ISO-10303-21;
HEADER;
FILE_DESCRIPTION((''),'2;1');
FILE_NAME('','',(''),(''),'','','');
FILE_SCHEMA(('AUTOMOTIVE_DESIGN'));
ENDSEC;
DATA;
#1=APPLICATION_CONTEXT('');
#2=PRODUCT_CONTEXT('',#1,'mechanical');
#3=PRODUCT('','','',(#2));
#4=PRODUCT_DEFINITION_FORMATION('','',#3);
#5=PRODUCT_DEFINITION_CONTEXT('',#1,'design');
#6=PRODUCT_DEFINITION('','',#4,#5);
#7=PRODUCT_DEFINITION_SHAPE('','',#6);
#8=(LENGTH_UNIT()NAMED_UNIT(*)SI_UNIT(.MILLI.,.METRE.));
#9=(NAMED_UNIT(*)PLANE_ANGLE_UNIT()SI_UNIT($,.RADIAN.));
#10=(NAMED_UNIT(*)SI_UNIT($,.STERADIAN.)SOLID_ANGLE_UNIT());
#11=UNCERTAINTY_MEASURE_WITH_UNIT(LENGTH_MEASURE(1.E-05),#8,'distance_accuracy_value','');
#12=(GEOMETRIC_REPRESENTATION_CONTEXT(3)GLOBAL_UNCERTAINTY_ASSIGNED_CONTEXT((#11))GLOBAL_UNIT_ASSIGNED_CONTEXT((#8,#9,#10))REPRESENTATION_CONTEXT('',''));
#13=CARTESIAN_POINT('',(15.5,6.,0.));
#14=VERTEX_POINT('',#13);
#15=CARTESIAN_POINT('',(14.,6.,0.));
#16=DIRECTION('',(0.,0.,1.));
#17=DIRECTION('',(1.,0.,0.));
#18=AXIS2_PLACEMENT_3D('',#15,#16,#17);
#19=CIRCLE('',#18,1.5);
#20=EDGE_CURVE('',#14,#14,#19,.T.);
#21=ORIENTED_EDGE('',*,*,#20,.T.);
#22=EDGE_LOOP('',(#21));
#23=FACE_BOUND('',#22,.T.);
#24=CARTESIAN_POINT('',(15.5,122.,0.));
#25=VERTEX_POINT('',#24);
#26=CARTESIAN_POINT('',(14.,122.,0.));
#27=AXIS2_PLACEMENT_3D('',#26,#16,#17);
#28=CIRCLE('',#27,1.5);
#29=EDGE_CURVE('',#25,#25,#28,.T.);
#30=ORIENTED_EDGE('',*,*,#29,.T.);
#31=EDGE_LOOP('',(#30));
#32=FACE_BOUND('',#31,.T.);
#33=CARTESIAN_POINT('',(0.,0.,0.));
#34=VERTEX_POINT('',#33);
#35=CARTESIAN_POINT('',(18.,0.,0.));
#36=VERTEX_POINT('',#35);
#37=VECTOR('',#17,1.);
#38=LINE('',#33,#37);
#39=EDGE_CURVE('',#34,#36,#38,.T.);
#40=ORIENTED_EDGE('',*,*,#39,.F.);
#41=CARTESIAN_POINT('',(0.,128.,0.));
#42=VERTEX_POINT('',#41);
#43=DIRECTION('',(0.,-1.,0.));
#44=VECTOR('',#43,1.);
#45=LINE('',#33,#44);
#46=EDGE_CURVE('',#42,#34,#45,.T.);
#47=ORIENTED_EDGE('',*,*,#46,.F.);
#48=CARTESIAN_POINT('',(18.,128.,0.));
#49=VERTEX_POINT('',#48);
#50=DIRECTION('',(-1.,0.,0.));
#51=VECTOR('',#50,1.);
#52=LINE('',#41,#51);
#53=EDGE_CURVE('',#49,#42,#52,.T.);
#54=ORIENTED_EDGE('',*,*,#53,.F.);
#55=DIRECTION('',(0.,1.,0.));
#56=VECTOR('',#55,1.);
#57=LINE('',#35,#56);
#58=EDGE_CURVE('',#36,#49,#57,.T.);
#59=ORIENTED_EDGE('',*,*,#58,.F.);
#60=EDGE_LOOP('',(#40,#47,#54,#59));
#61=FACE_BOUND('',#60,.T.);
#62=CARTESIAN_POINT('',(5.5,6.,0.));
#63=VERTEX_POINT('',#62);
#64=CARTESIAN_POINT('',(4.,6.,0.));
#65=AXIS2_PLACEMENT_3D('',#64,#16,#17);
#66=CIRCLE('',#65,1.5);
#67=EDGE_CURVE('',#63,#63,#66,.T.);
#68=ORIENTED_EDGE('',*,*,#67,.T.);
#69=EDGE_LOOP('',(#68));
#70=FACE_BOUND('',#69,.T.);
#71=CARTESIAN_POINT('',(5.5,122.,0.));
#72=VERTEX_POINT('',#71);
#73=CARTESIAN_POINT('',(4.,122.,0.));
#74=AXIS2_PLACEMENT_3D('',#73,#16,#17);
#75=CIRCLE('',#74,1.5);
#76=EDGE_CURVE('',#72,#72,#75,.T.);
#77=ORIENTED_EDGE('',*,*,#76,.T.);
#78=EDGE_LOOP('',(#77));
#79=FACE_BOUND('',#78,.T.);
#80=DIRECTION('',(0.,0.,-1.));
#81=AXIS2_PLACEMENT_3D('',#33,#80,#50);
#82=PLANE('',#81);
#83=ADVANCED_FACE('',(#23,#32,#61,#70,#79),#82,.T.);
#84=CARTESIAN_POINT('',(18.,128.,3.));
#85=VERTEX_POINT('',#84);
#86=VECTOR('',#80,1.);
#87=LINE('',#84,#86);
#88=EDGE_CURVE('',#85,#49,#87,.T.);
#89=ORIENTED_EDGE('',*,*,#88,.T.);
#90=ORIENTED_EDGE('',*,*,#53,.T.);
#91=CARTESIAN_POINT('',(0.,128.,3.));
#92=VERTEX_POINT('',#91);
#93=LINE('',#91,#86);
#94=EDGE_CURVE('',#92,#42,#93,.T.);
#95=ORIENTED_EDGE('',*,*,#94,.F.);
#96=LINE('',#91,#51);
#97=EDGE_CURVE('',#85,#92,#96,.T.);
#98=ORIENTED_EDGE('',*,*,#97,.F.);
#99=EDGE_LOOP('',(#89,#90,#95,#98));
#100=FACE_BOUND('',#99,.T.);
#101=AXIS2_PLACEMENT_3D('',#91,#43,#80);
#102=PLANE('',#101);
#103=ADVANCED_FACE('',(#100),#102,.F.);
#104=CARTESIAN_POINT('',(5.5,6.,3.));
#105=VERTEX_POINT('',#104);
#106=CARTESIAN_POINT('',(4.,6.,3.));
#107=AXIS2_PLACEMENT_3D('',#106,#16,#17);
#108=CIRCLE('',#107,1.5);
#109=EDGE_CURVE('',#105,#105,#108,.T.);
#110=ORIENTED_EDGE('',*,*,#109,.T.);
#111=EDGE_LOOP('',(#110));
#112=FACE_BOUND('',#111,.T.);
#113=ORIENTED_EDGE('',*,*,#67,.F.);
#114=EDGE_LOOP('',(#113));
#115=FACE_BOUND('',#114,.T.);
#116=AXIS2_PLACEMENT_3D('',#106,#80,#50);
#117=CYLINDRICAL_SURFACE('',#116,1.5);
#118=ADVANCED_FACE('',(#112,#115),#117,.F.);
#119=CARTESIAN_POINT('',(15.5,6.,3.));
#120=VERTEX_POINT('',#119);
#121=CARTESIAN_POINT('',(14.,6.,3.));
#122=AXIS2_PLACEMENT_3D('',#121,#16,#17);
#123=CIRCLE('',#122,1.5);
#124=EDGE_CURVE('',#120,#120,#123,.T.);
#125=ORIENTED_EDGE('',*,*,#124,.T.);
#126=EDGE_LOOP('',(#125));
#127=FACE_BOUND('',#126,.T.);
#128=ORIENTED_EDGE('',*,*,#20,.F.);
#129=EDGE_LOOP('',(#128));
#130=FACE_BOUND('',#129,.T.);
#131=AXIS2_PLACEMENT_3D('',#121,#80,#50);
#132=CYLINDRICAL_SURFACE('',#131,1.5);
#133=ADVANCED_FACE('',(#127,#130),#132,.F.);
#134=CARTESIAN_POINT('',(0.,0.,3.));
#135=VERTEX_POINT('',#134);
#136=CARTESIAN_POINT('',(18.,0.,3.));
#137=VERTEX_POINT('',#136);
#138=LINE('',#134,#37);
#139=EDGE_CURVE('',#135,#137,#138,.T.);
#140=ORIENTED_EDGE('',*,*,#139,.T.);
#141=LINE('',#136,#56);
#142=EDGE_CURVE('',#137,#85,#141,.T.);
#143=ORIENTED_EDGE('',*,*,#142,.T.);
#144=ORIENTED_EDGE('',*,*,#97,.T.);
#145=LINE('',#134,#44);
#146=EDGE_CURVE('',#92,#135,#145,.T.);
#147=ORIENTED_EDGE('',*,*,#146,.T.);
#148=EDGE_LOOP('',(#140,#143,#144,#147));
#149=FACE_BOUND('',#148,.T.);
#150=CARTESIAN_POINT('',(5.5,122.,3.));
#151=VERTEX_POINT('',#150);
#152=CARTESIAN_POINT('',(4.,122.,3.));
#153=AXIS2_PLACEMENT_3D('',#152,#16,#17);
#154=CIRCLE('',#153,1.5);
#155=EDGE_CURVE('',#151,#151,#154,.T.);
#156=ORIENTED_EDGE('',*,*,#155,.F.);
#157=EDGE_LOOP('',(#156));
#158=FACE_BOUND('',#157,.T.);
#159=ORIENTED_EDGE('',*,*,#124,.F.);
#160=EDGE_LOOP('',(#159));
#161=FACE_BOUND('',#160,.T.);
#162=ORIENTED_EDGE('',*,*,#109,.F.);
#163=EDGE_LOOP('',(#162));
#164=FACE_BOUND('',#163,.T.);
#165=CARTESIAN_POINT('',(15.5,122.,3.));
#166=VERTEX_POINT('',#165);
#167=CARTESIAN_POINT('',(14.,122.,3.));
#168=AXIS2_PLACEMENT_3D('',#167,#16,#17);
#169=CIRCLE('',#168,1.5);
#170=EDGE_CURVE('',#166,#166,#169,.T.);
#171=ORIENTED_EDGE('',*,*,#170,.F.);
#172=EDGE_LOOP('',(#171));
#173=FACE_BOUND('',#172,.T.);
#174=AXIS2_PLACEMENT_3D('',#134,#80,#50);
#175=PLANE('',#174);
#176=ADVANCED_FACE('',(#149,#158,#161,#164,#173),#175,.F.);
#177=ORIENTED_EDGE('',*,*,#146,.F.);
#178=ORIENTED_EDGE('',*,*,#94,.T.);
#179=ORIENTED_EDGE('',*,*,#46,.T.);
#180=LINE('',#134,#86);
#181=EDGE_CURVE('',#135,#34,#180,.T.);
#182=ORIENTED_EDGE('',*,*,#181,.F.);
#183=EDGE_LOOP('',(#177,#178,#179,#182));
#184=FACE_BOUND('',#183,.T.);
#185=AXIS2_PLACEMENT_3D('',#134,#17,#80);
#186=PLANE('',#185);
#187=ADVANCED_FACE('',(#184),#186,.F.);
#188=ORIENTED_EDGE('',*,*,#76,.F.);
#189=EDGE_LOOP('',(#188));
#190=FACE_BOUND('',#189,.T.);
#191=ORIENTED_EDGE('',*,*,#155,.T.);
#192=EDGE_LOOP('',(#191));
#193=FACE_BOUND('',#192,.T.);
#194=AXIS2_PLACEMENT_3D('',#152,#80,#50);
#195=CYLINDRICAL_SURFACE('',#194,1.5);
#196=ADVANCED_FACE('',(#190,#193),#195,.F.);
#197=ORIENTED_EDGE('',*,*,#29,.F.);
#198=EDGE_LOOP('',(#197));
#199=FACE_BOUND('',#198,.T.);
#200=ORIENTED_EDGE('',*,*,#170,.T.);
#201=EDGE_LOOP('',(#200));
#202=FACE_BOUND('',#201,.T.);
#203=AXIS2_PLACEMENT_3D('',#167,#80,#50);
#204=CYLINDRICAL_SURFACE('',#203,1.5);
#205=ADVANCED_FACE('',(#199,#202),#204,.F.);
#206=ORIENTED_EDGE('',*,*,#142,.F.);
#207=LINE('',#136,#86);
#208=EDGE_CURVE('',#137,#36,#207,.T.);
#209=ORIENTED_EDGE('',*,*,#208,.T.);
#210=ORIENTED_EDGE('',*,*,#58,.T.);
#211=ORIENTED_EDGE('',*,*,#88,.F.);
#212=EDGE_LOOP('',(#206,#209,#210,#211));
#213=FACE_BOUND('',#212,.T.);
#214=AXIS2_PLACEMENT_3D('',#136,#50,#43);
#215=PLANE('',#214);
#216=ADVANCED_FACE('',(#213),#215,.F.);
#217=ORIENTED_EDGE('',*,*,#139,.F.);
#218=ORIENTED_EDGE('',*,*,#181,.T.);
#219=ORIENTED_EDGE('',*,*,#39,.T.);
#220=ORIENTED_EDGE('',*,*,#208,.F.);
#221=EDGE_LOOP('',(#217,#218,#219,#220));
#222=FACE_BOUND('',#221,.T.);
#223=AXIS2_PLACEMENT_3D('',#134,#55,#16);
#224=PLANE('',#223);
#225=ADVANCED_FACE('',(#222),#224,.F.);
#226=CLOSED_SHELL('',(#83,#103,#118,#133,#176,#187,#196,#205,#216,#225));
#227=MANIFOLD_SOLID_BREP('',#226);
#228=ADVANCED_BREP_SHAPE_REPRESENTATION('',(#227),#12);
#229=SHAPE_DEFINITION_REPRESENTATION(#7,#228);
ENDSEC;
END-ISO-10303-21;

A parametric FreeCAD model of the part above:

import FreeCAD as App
import Part
import Sketcher

doc = App.newDocument("Part")
body = doc.addObject("PartDesign::Body", "Body")

# Sketch on XY plane
sketch1 = doc.addObject("Sketcher::SketchObject", "Sketch")
body.addObject(sketch1)
sketch1.AttachmentSupport = (doc.XY_Plane, [""])
sketch1.MapMode = "FlatFace"
sketch1.addGeometry([
    Part.LineSegment(App.Vector(0, 128, 0), App.Vector(0, 0, 0)),  # 0
    Part.LineSegment(App.Vector(0, 0, 0), App.Vector(18, 0, 0)),  # 1
    Part.LineSegment(App.Vector(18, 0, 0), App.Vector(18, 128, 0)),  # 2
    Part.LineSegment(App.Vector(18, 128, 0), App.Vector(0, 128, 0)),  # 3
    Part.Circle(App.Vector(4, 6, 0), App.Vector(0, 0, 1), 1.5),  # 4
    Part.Circle(App.Vector(14, 6, 0), App.Vector(0, 0, 1), 1.5),  # 5
    Part.Circle(App.Vector(4, 122, 0), App.Vector(0, 0, 1), 1.5),  # 6
    Part.Circle(App.Vector(14, 122, 0), App.Vector(0, 0, 1), 1.5),  # 7
], False)
sketch1.addConstraint([
    Sketcher.Constraint("Coincident", 0, 2, 1, 1),
    Sketcher.Constraint("Coincident", 1, 2, 2, 1),
    Sketcher.Constraint("Coincident", 2, 2, 3, 1),
    Sketcher.Constraint("Coincident", 3, 2, 0, 1),
    Sketcher.Constraint("Vertical", 0),
    Sketcher.Constraint("Horizontal", 1),
    Sketcher.Constraint("Vertical", 2),
    Sketcher.Constraint("Horizontal", 3),
    Sketcher.Constraint("Coincident", 0, 2, -1, 1),
    Sketcher.Constraint("Equal", 4, 5),
    Sketcher.Constraint("Equal", 5, 6),
    Sketcher.Constraint("Equal", 6, 7),
    Sketcher.Constraint("Horizontal", 4, 3, 5, 3),
    Sketcher.Constraint("Horizontal", 6, 3, 7, 3),
    Sketcher.Constraint("Vertical", 4, 3, 6, 3),
    Sketcher.Constraint("Vertical", 5, 3, 7, 3),
    Sketcher.Constraint("Diameter", 4, 3.0),
    Sketcher.Constraint("DistanceX", 1, 1, 1, 2, 18.0),
    Sketcher.Constraint("DistanceY", 0, 2, 0, 1, 128.0),
    Sketcher.Constraint("DistanceX", -1, 1, 4, 3, 4.0),
    Sketcher.Constraint("DistanceY", -1, 1, 4, 3, 6.0),
    Sketcher.Constraint("DistanceX", -1, 1, 5, 3, 14.0),
    Sketcher.Constraint("DistanceY", -1, 1, 6, 3, 122.0),
])
pad1 = doc.addObject("PartDesign::Pad", "Pad")
body.addObject(pad1)
pad1.Profile = sketch1
pad1.Length = 3

doc.recompute()
